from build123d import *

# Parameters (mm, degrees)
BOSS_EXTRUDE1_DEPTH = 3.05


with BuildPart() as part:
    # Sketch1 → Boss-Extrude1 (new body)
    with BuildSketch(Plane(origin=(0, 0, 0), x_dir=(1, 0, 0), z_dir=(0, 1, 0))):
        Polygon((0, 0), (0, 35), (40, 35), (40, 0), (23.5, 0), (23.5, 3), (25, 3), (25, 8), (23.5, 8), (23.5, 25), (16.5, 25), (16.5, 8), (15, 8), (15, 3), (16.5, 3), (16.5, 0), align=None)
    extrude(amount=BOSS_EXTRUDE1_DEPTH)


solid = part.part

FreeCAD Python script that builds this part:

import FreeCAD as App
import Part
import Sketcher
from FreeCAD import Vector
Q = App.Units.Quantity


def add_polygon(sketch, points):
    """Adds a closed chain of lines whose ends are joined by coincident constraints."""
    first, n = sketch.GeometryCount, len(points)
    for a, b in zip(points, points[1:] + points[:1]):
        sketch.addGeometry(Part.LineSegment(App.Vector(*a, 0), App.Vector(*b, 0)), False)
    for i in range(n):
        sketch.addConstraint(Sketcher.Constraint("Coincident", first + i, 2, first + (i + 1) % n, 1))

doc = App.newDocument("Part")
body = doc.addObject("PartDesign::Body", "Body")

# Sketch on XZ plane
sketch1 = doc.addObject("Sketcher::SketchObject", "Sketch")
body.addObject(sketch1)
sketch1.AttachmentSupport = (doc.XZ_Plane, [""])
sketch1.MapMode = "FlatFace"
add_polygon(sketch1, [(0, -35), (0, 0), (16.5, 0), (16.5, -3), (15, -3), (15, -8), (16.5, -8), (16.5, -25), (23.5, -25), (23.5, -8), (25, -8), (25, -3), (23.5, -3), (23.5, 0), (40, 0), (40, -35)])  # lines 0-15
sketch1.addConstraint([
    Sketcher.Constraint("Vertical", 0),
    Sketcher.Constraint("Horizontal", 1),
    Sketcher.Constraint("Vertical", 2),
    Sketcher.Constraint("Horizontal", 3),
    Sketcher.Constraint("Vertical", 4),
    Sketcher.Constraint("Horizontal", 5),
    Sketcher.Constraint("Vertical", 6),
    Sketcher.Constraint("Horizontal", 7),
    Sketcher.Constraint("Vertical", 8),
    Sketcher.Constraint("Horizontal", 9),
    Sketcher.Constraint("Vertical", 10),
    Sketcher.Constraint("Horizontal", 11),
    Sketcher.Constraint("Vertical", 12),
    Sketcher.Constraint("Horizontal", 13),
    Sketcher.Constraint("Vertical", 14),
    Sketcher.Constraint("Horizontal", 15),
    Sketcher.Constraint("Coincident", 0, 2, -1, 1),
    Sketcher.Constraint("PointOnObject", 12, 2, -1),
    Sketcher.Constraint("Horizontal", 5, 2, 8, 2),
    Sketcher.Constraint("Horizontal", 3, 2, 10, 2),
    Sketcher.Constraint("Vertical", 2, 2, 5, 2),
    Sketcher.Constraint("Vertical", 8, 2, 11, 2),
    Sketcher.Constraint("Equal", 5, 9),
    Sketcher.Constraint("Equal", 1, 13),
    Sketcher.Constraint("DistanceX", 7, 1, 7, 2, Q("7 mm")),
    Sketcher.Constraint("DistanceX", 15, 2, 15, 1, Q("40 mm")),
    Sketcher.Constraint("DistanceY", 0, 1, 0, 2, Q("35 mm")),
    Sketcher.Constraint("DistanceY", 2, 2, 2, 1, Q("3 mm")),
    Sketcher.Constraint("DistanceY", 4, 2, 4, 1, Q("5 mm")),
    Sketcher.Constraint("DistanceY", 6, 2, 6, 1, Q("17 mm")),
    Sketcher.Constraint("DistanceX", 3, 2, 3, 1, Q("1.5 mm")),
])
pad1 = doc.addObject("PartDesign::Pad", "Pad")
body.addObject(pad1)
pad1.Profile = sketch1
pad1.Length = 3.05
pad1.Reversed = True

doc.recompute()
